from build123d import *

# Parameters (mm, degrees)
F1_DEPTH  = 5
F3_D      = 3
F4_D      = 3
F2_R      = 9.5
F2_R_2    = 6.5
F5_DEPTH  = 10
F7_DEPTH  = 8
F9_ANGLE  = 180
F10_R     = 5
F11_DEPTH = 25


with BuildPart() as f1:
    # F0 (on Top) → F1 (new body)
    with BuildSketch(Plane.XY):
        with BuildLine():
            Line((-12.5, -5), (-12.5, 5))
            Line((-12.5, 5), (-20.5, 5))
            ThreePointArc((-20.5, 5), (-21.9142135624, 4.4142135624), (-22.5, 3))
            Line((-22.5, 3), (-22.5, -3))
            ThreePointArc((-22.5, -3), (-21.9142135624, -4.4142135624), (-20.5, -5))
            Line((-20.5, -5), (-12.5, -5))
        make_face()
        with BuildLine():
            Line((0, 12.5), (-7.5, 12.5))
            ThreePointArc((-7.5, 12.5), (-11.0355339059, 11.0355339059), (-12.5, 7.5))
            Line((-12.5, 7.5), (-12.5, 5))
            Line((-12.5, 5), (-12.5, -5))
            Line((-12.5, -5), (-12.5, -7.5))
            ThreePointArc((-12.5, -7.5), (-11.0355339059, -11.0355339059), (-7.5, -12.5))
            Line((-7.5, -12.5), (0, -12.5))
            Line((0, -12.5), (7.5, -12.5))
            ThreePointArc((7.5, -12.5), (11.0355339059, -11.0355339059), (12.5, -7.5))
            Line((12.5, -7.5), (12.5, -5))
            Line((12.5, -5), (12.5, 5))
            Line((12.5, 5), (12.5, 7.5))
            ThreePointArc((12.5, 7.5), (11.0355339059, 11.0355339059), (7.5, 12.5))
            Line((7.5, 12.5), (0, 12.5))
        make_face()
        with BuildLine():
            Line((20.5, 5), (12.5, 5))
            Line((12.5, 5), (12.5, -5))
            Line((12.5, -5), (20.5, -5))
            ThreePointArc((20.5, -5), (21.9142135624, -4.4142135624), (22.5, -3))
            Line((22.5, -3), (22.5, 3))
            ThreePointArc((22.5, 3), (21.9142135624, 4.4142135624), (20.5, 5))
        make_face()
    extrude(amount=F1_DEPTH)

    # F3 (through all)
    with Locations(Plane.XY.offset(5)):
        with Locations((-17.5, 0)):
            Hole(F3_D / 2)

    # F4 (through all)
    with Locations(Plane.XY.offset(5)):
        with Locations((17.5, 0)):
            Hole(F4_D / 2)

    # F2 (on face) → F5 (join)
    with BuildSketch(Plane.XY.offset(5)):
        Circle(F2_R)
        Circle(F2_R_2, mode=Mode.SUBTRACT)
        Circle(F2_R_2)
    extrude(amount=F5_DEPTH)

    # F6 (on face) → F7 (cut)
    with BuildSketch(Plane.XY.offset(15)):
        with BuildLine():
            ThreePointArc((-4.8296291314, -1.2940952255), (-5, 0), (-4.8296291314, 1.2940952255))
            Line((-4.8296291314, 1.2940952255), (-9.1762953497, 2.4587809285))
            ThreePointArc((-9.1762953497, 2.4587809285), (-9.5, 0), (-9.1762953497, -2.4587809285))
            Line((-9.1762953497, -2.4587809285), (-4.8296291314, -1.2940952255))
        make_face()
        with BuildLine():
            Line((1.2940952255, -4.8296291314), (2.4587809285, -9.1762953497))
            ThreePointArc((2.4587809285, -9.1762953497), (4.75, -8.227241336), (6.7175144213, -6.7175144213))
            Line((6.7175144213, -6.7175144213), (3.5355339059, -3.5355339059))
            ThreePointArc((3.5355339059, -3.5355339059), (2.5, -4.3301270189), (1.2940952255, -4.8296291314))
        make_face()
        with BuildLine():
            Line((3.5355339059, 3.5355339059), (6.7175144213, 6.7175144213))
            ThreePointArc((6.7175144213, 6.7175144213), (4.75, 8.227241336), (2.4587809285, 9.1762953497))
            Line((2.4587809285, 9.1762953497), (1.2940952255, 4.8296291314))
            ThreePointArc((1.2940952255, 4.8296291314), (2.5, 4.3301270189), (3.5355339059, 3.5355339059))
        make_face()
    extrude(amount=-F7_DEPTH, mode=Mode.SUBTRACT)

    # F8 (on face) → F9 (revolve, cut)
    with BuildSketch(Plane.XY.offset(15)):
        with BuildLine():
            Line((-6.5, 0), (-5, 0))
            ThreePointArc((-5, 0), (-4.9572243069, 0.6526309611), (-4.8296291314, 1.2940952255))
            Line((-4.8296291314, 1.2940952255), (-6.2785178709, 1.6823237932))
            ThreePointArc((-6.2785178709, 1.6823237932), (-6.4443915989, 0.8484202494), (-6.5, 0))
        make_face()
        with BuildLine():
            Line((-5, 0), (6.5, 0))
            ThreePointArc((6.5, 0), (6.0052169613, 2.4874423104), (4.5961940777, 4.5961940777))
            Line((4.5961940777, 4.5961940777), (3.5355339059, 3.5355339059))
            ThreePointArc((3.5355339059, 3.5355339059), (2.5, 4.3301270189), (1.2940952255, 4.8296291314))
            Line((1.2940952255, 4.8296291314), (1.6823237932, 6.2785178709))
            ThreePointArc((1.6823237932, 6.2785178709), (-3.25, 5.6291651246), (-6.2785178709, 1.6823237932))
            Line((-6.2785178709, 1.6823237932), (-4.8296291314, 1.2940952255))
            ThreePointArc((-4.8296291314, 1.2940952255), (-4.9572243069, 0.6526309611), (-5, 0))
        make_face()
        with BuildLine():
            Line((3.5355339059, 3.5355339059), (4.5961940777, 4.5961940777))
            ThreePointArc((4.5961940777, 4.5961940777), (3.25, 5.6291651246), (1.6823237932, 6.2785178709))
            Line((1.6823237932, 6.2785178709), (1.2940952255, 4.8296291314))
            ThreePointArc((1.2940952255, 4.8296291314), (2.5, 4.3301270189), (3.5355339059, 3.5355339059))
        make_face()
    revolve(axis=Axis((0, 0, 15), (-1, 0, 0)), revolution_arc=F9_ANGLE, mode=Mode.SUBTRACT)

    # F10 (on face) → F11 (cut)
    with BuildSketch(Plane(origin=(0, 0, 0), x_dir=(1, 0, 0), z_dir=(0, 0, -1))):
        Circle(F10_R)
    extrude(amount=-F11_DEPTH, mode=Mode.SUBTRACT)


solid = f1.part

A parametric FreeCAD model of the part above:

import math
import FreeCAD as App
import Part
import Sketcher
Q = App.Units.Quantity

doc = App.newDocument("Part")
body = doc.addObject("PartDesign::Body", "Body")

# Sketch on XY plane
sketch1 = body.newObject("Sketcher::SketchObject", "Sketch")
sketch1.AttachmentSupport = (doc.getObject("XY_Plane"), [""])
sketch1.MapMode = "FlatFace"
sketch1.addGeometry([
    Part.LineSegment(App.Vector(-12.5, 5, 0), App.Vector(-20.5, 5, 0)),  # 0
    Part.ArcOfCircle(Part.Circle(App.Vector(-20.5, 3, 0), App.Vector(0, 0, 1), 2), math.radians(90), math.radians(180)),  # 1
    Part.LineSegment(App.Vector(-22.5, 3, 0), App.Vector(-22.5, -3, 0)),  # 2
    Part.ArcOfCircle(Part.Circle(App.Vector(-20.5, -3, 0), App.Vector(0, 0, 1), 2), math.radians(180), math.radians(270)),  # 3
    Part.LineSegment(App.Vector(-20.5, -5, 0), App.Vector(-12.5, -5, 0)),  # 4
    Part.LineSegment(App.Vector(-12.5, -5, 0), App.Vector(-12.5, -7.5, 0)),  # 5
    Part.ArcOfCircle(Part.Circle(App.Vector(-7.5, -7.5, 0), App.Vector(0, 0, 1), 5), math.radians(180), math.radians(270)),  # 6
    Part.LineSegment(App.Vector(-7.5, -12.5, 0), App.Vector(7.5, -12.5, 0)),  # 7
    Part.ArcOfCircle(Part.Circle(App.Vector(7.5, -7.5, 0), App.Vector(0, 0, 1), 5), math.radians(-90), math.radians(0)),  # 8
    Part.LineSegment(App.Vector(12.5, -7.5, 0), App.Vector(12.5, -5, 0)),  # 9
    Part.LineSegment(App.Vector(12.5, -5, 0), App.Vector(20.5, -5, 0)),  # 10
    Part.ArcOfCircle(Part.Circle(App.Vector(20.5, -3, 0), App.Vector(0, 0, 1), 2), math.radians(-90), math.radians(0)),  # 11
    Part.LineSegment(App.Vector(22.5, -3, 0), App.Vector(22.5, 3, 0)),  # 12
    Part.ArcOfCircle(Part.Circle(App.Vector(20.5, 3, 0), App.Vector(0, 0, 1), 2), math.radians(0), math.radians(90)),  # 13
    Part.LineSegment(App.Vector(20.5, 5, 0), App.Vector(12.5, 5, 0)),  # 14
    Part.LineSegment(App.Vector(12.5, 5, 0), App.Vector(12.5, 7.5, 0)),  # 15
    Part.ArcOfCircle(Part.Circle(App.Vector(7.5, 7.5, 0), App.Vector(0, 0, 1), 5), math.radians(0), math.radians(90)),  # 16
    Part.LineSegment(App.Vector(7.5, 12.5, 0), App.Vector(-7.5, 12.5, 0)),  # 17
    Part.ArcOfCircle(Part.Circle(App.Vector(-7.5, 7.5, 0), App.Vector(0, 0, 1), 5), math.radians(90), math.radians(180)),  # 18
    Part.LineSegment(App.Vector(-12.5, 7.5, 0), App.Vector(-12.5, 5, 0)),  # 19
], False)
sketch1.addConstraint([
    Sketcher.Constraint("Tangent", 0, 2, 1, 1),
    Sketcher.Constraint("Tangent", 1, 2, 2, 1),
    Sketcher.Constraint("Tangent", 2, 2, 3, 1),
    Sketcher.Constraint("Tangent", 3, 2, 4, 1),
    Sketcher.Constraint("Coincident", 4, 2, 5, 1),
    Sketcher.Constraint("Tangent", 5, 2, 6, 1),
    Sketcher.Constraint("Tangent", 6, 2, 7, 1),
    Sketcher.Constraint("Tangent", 7, 2, 8, 1),
    Sketcher.Constraint("Tangent", 8, 2, 9, 1),
    Sketcher.Constraint("Coincident", 9, 2, 10, 1),
    Sketcher.Constraint("Tangent", 10, 2, 11, 1),
    Sketcher.Constraint("Tangent", 11, 2, 12, 1),
    Sketcher.Constraint("Tangent", 12, 2, 13, 1),
    Sketcher.Constraint("Tangent", 13, 2, 14, 1),
    Sketcher.Constraint("Coincident", 14, 2, 15, 1),
    Sketcher.Constraint("Tangent", 15, 2, 16, 1),
    Sketcher.Constraint("Tangent", 16, 2, 17, 1),
    Sketcher.Constraint("Tangent", 17, 2, 18, 1),
    Sketcher.Constraint("Tangent", 18, 2, 19, 1),
    Sketcher.Constraint("Coincident", 19, 2, 0, 1),
    Sketcher.Constraint("Horizontal", 0),
    Sketcher.Constraint("Vertical", 2),
    Sketcher.Constraint("Horizontal", 4),
    Sketcher.Constraint("Vertical", 5),
    Sketcher.Constraint("Horizontal", 7),
    Sketcher.Constraint("Vertical", 9),
    Sketcher.Constraint("Horizontal", 10),
    Sketcher.Constraint("Vertical", 12),
    Sketcher.Constraint("Horizontal", 14),
    Sketcher.Constraint("Vertical", 15),
    Sketcher.Constraint("Horizontal", 17),
    Sketcher.Constraint("Vertical", 19),
    Sketcher.Constraint("Equal", 1, 3),
    Sketcher.Constraint("Equal", 6, 8),
    Sketcher.Constraint("Equal", 3, 11),
    Sketcher.Constraint("Equal", 11, 13),
    Sketcher.Constraint("Equal", 8, 16),
    Sketcher.Constraint("Equal", 16, 18),
    Sketcher.Constraint("Symmetric", 1, 3, 11, 3, -1, 1),
    Sketcher.Constraint("Symmetric", 6, 3, 16, 3, -1, 1),
    Sketcher.Constraint("Symmetric", 4, 2, 9, 2, -2),
    Sketcher.Constraint("Symmetric", 14, 2, 19, 2, -2),
    Sketcher.Constraint("Radius", 1, 2.0),
    Sketcher.Constraint("Radius", 6, 5.0),
    Sketcher.Constraint("DistanceX", 0, 2, 0, 1, 8.0),
    Sketcher.Constraint("DistanceX", 7, 1, 7, 2, 15.0),
    Sketcher.Constraint("DistanceY", 2, 2, 2, 1, 6.0),
    Sketcher.Constraint("DistanceY", 5, 2, 5, 1, 2.5),
])
pad1 = body.newObject("PartDesign::Pad", "Pad")
pad1.Profile = sketch1
pad1.Length = 5

# Sketch on XY plane
sketch2 = body.newObject("Sketcher::SketchObject", "Sketch001")
sketch2.AttachmentSupport = (doc.getObject("XY_Plane"), [""])
sketch2.MapMode = "FlatFace"
sketch2.AttachmentOffset = App.Placement(App.Vector(0, 0, 5), App.Rotation())
sketch2.addGeometry(Part.Circle(App.Vector(-17.5, 0, 0), App.Vector(0, 0, 1), 1.5), False)
sketch2.addConstraint([
    Sketcher.Constraint("PointOnObject", 0, 3, -1),
    Sketcher.Constraint("Diameter", 0, 3.0),
    Sketcher.Constraint("DistanceX", 0, 3, -1, 1, 17.5),
])
doc.recompute()
hole = body.newObject("PartDesign::Hole", "Hole")
hole.Profile = sketch2
hole.ThreadType = "None"
hole.Diameter = 3
hole.DepthType = "ThroughAll"

# Sketch on XY plane
sketch3 = body.newObject("Sketcher::SketchObject", "Sketch002")
sketch3.AttachmentSupport = (doc.getObject("XY_Plane"), [""])
sketch3.MapMode = "FlatFace"
sketch3.AttachmentOffset = App.Placement(App.Vector(0, 0, 5), App.Rotation())
sketch3.addGeometry(Part.Circle(App.Vector(17.5, 0, 0), App.Vector(0, 0, 1), 1.5), False)
sketch3.addConstraint([
    Sketcher.Constraint("PointOnObject", 0, 3, -1),
    Sketcher.Constraint("Diameter", 0, 3.0),
    Sketcher.Constraint("DistanceX", -1, 1, 0, 3, 17.5),
])
doc.recompute()
hole2 = body.newObject("PartDesign::Hole", "Hole001")
hole2.Profile = sketch3
hole2.ThreadType = "None"
hole2.Diameter = 3
hole2.DepthType = "ThroughAll"

# Sketch on XY plane
sketch4 = body.newObject("Sketcher::SketchObject", "Sketch003")
sketch4.AttachmentSupport = (doc.getObject("XY_Plane"), [""])
sketch4.MapMode = "FlatFace"
sketch4.AttachmentOffset = App.Placement(App.Vector(0, 0, 5), App.Rotation())
sketch4.addGeometry(Part.Circle(App.Vector(0, 0, 0), App.Vector(0, 0, 1), 10), False)
sketch4.addConstraint([
    Sketcher.Constraint("Coincident", 0, 3, -1, 1),
    Sketcher.Constraint("Diameter", 0, 19.0),
])
pad2 = body.newObject("PartDesign::Pad", "Pad001")
pad2.Profile = sketch4
pad2.Length = 10

# Sketch on XY plane
sketch5 = body.newObject("Sketcher::SketchObject", "Sketch004")
sketch5.AttachmentSupport = (doc.getObject("XY_Plane"), [""])
sketch5.MapMode = "FlatFace"
sketch5.AttachmentOffset = App.Placement(App.Vector(0, 0, 15), App.Rotation())
sketch5.addGeometry([
    Part.ArcOfCircle(Part.Circle(App.Vector(0, 0, 0), App.Vector(0, 0, 1), 5), math.radians(165), math.radians(195)),  # 0
    Part.LineSegment(App.Vector(-4.8, 1.3, 0), App.Vector(-9.2, 2.5, 0)),  # 1
    Part.ArcOfCircle(Part.Circle(App.Vector(0, 0, 0), App.Vector(0, 0, 1), 9.5), math.radians(165), math.radians(195)),  # 2
    Part.LineSegment(App.Vector(-9.2, -2.5, 0), App.Vector(-4.8, -1.3, 0)),  # 3
    Part.LineSegment(App.Vector(1.3, -4.8, 0), App.Vector(2.5, -9.2, 0)),  # 4
    Part.ArcOfCircle(Part.Circle(App.Vector(0, 0, 0), App.Vector(0, 0, 1), 9.5), math.radians(-75), math.radians(-45)),  # 5
    Part.LineSegment(App.Vector(6.7, -6.7, 0), App.Vector(3.5, -3.5, 0)),  # 6
    Part.ArcOfCircle(Part.Circle(App.Vector(0, 0, 0), App.Vector(0, 0, 1), 5), math.radians(-75), math.radians(-45)),  # 7
    Part.LineSegment(App.Vector(3.5, 3.5, 0), App.Vector(6.7, 6.7, 0)),  # 8
    Part.ArcOfCircle(Part.Circle(App.Vector(0, 0, 0), App.Vector(0, 0, 1), 9.5), math.radians(45), math.radians(75)),  # 9
    Part.LineSegment(App.Vector(2.5, 9.2, 0), App.Vector(1.3, 4.8, 0)),  # 10
    Part.ArcOfCircle(Part.Circle(App.Vector(0, 0, 0), App.Vector(0, 0, 1), 5), math.radians(45), math.radians(75)),  # 11
], False)
sketch5.addConstraint([
    Sketcher.Constraint("Coincident", 0, 1, 1, 1),
    Sketcher.Constraint("Coincident", 1, 2, 2, 1),
    Sketcher.Constraint("Coincident", 2, 2, 3, 1),
    Sketcher.Constraint("Coincident", 3, 2, 0, 2),
    Sketcher.Constraint("Coincident", 4, 2, 5, 1),
    Sketcher.Constraint("Coincident", 5, 2, 6, 1),
    Sketcher.Constraint("Coincident", 6, 2, 7, 2),
    Sketcher.Constraint("Coincident", 7, 1, 4, 1),
    Sketcher.Constraint("Coincident", 8, 2, 9, 1),
    Sketcher.Constraint("Coincident", 9, 2, 10, 1),
    Sketcher.Constraint("Coincident", 10, 2, 11, 2),
    Sketcher.Constraint("Coincident", 11, 1, 8, 1),
    Sketcher.Constraint("Coincident", 0, 3, -1, 1),
    Sketcher.Constraint("Coincident", 2, 3, -1, 1),
    Sketcher.Constraint("Coincident", 5, 3, -1, 1),
    Sketcher.Constraint("Coincident", 7, 3, -1, 1),
    Sketcher.Constraint("Coincident", 9, 3, -1, 1),
    Sketcher.Constraint("Coincident", 11, 3, -1, 1),
    Sketcher.Constraint("Equal", 2, 5),
    Sketcher.Constraint("Equal", 0, 7),
    Sketcher.Constraint("Equal", 5, 9),
    Sketcher.Constraint("Equal", 7, 11),
    Sketcher.Constraint("Perpendicular", 3, 4),
    Sketcher.Constraint("Perpendicular", 6, 8),
    Sketcher.Constraint("Perpendicular", 1, 10),
    Sketcher.Constraint("Vertical", 1, 2, 2, 2),
    Sketcher.Constraint("Vertical", 0, 1, 3, 2),
    Sketcher.Constraint("Vertical", 5, 2, 8, 2),
    Sketcher.Constraint("Vertical", 4, 2, 9, 2),
    Sketcher.Constraint("Vertical", 6, 2, 11, 1),
    Sketcher.Constraint("Radius", 0, 5.0),
    Sketcher.Constraint("Radius", 2, 9.5),
    Sketcher.Constraint("Angle", 1, Q("165 deg")),
    Sketcher.Constraint("DistanceX", 0, 1, -1, 1, 4.829629),
    Sketcher.Constraint("DistanceX", -1, 1, 4, 2, 2.458781),
    Sketcher.Constraint("DistanceY", 4, 2, 5, 2, 2.458781),
])
pocket1 = body.newObject("PartDesign::Pocket", "Pocket")
pocket1.Profile = sketch5
pocket1.Length = 8

# Sketch on XY plane
sketch6 = body.newObject("Sketcher::SketchObject", "Sketch005")
sketch6.AttachmentSupport = (doc.getObject("XY_Plane"), [""])
sketch6.MapMode = "FlatFace"
sketch6.AttachmentOffset = App.Placement(App.Vector(0, 0, 15), App.Rotation())
sketch6.addGeometry([
    Part.LineSegment(App.Vector(-6.5, 0, 0), App.Vector(6.5, 0, 0)),  # 0
    Part.ArcOfCircle(Part.Circle(App.Vector(0, 0, 0), App.Vector(0, 0, 1), 6.5), math.radians(0), math.radians(45)),  # 1
    Part.ArcOfCircle(Part.Circle(App.Vector(0, 0, 0), App.Vector(0, 0, 1), 6.5), math.radians(45), math.radians(75)),  # 2
    Part.ArcOfCircle(Part.Circle(App.Vector(0, 0, 0), App.Vector(0, 0, 1), 6.5), math.radians(75), math.radians(165)),  # 3
    Part.ArcOfCircle(Part.Circle(App.Vector(0, 0, 0), App.Vector(0, 0, 1), 6.5), math.radians(165), math.radians(180)),  # 4
], False)
sketch6.addConstraint([
    Sketcher.Constraint("Coincident", 0, 2, 1, 1),
    Sketcher.Constraint("Tangent", 1, 2, 2, 1),
    Sketcher.Constraint("Tangent", 2, 2, 3, 1),
    Sketcher.Constraint("Tangent", 3, 2, 4, 1),
    Sketcher.Constraint("Coincident", 4, 2, 0, 1),
    Sketcher.Constraint("Horizontal", 0),
    Sketcher.Constraint("Coincident", 1, 3, -1, 1),
    Sketcher.Constraint("Coincident", 3, 3, -1, 1),
    Sketcher.Constraint("Equal", 3, 4),
    Sketcher.Constraint("PointOnObject", 0, 2, -1),
    Sketcher.Constraint("Radius", 1, 6.5),
    Sketcher.Constraint("DistanceX", 2, 2, 1, 2, 2.91387),
    Sketcher.Constraint("DistanceX", 3, 2, 2, 2, 7.960842),
    Sketcher.Constraint("DistanceX", -1, 1, 1, 2, 4.596194),
])
groove = body.newObject("PartDesign::Groove", "Groove")
groove.Profile = sketch6
groove.ReferenceAxis = (sketch6, ["H_Axis"])
groove.Angle = 180
groove.Reversed = True

# Sketch on XY plane
sketch7 = body.newObject("Sketcher::SketchObject", "Sketch006")
sketch7.AttachmentSupport = (doc.getObject("XY_Plane"), [""])
sketch7.MapMode = "FlatFace"
sketch7.addGeometry(Part.Circle(App.Vector(0, 0, 0), App.Vector(0, 0, 1), 5), False)
sketch7.addConstraint([
    Sketcher.Constraint("Coincident", 0, 3, -1, 1),
    Sketcher.Constraint("Diameter", 0, 10.0),
])
pocket2 = body.newObject("PartDesign::Pocket", "Pocket001")
pocket2.Profile = sketch7
pocket2.Length = 25
pocket2.Reversed = True

doc.recompute()
